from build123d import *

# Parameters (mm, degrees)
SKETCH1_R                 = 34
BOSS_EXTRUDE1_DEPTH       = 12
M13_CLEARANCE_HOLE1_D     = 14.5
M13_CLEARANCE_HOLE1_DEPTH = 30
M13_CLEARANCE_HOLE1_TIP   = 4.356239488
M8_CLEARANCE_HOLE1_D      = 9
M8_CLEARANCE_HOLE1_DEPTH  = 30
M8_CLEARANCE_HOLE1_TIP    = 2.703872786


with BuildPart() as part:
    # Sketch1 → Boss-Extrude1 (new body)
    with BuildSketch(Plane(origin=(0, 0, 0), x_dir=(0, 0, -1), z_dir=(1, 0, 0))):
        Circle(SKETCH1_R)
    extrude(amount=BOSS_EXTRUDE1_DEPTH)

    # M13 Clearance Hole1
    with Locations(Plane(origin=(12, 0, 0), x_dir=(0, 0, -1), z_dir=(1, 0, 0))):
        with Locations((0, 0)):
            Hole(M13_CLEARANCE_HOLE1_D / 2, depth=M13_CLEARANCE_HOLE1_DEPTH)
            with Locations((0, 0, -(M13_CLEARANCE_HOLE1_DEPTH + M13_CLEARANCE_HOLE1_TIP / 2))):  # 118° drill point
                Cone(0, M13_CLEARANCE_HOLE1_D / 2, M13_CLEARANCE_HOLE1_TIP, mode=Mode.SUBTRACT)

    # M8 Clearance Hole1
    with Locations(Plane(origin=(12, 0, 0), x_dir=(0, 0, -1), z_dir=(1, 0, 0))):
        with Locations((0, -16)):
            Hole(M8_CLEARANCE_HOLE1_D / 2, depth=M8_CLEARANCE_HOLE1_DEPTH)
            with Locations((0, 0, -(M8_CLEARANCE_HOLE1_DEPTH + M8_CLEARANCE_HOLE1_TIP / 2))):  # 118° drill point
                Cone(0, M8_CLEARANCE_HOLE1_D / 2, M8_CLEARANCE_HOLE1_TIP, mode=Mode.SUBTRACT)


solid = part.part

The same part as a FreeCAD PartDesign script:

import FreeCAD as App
import Part
import Sketcher

doc = App.newDocument("Part")
body = doc.addObject("PartDesign::Body", "Body")

# Sketch on YZ plane
sketch1 = body.newObject("Sketcher::SketchObject", "Sketch")
sketch1.AttachmentSupport = (doc.getObject("YZ_Plane"), [""])
sketch1.MapMode = "FlatFace"
sketch1.addGeometry(Part.Circle(App.Vector(0, 0, 0), App.Vector(0, 0, 1), 34), False)
sketch1.addConstraint([
    Sketcher.Constraint("Coincident", 0, 3, -1, 1),
    Sketcher.Constraint("Diameter", 0, 68.0),
])
pad1 = body.newObject("PartDesign::Pad", "Pad")
pad1.Profile = sketch1
pad1.Length = 12

# Sketch on YZ plane
sketch2 = body.newObject("Sketcher::SketchObject", "Sketch001")
sketch2.AttachmentSupport = (doc.getObject("YZ_Plane"), [""])
sketch2.MapMode = "FlatFace"
sketch2.AttachmentOffset = App.Placement(App.Vector(0, 0, 12), App.Rotation())
sketch2.addGeometry(Part.Circle(App.Vector(0, 0, 0), App.Vector(0, 0, 1), 7), False)
sketch2.addConstraint([
    Sketcher.Constraint("Coincident", 0, 3, -1, 1),
    Sketcher.Constraint("Diameter", 0, 14.5),
])
doc.recompute()
hole = body.newObject("PartDesign::Hole", "Hole")
hole.Profile = sketch2
hole.ThreadType = "None"
hole.Diameter = 14.5
hole.DepthType = "Dimension"
hole.Depth = 30
hole.DrillPoint = "Angled"
hole.DrillPointAngle = 118

# Sketch on YZ plane
sketch3 = body.newObject("Sketcher::SketchObject", "Sketch002")
sketch3.AttachmentSupport = (doc.getObject("YZ_Plane"), [""])
sketch3.MapMode = "FlatFace"
sketch3.AttachmentOffset = App.Placement(App.Vector(0, 0, 12), App.Rotation())
sketch3.addGeometry(Part.Circle(App.Vector(-16, 0, 0), App.Vector(0, 0, 1), 4.5), False)
sketch3.addConstraint([
    Sketcher.Constraint("PointOnObject", 0, 3, -1),
    Sketcher.Constraint("Diameter", 0, 9.0),
    Sketcher.Constraint("DistanceX", 0, 3, -1, 1, 16.0),
])
doc.recompute()
hole2 = body.newObject("PartDesign::Hole", "Hole001")
hole2.Profile = sketch3
hole2.ThreadType = "None"
hole2.Diameter = 9
hole2.DepthType = "Dimension"
hole2.Depth = 30
hole2.DrillPoint = "Angled"
hole2.DrillPointAngle = 118

doc.recompute()
